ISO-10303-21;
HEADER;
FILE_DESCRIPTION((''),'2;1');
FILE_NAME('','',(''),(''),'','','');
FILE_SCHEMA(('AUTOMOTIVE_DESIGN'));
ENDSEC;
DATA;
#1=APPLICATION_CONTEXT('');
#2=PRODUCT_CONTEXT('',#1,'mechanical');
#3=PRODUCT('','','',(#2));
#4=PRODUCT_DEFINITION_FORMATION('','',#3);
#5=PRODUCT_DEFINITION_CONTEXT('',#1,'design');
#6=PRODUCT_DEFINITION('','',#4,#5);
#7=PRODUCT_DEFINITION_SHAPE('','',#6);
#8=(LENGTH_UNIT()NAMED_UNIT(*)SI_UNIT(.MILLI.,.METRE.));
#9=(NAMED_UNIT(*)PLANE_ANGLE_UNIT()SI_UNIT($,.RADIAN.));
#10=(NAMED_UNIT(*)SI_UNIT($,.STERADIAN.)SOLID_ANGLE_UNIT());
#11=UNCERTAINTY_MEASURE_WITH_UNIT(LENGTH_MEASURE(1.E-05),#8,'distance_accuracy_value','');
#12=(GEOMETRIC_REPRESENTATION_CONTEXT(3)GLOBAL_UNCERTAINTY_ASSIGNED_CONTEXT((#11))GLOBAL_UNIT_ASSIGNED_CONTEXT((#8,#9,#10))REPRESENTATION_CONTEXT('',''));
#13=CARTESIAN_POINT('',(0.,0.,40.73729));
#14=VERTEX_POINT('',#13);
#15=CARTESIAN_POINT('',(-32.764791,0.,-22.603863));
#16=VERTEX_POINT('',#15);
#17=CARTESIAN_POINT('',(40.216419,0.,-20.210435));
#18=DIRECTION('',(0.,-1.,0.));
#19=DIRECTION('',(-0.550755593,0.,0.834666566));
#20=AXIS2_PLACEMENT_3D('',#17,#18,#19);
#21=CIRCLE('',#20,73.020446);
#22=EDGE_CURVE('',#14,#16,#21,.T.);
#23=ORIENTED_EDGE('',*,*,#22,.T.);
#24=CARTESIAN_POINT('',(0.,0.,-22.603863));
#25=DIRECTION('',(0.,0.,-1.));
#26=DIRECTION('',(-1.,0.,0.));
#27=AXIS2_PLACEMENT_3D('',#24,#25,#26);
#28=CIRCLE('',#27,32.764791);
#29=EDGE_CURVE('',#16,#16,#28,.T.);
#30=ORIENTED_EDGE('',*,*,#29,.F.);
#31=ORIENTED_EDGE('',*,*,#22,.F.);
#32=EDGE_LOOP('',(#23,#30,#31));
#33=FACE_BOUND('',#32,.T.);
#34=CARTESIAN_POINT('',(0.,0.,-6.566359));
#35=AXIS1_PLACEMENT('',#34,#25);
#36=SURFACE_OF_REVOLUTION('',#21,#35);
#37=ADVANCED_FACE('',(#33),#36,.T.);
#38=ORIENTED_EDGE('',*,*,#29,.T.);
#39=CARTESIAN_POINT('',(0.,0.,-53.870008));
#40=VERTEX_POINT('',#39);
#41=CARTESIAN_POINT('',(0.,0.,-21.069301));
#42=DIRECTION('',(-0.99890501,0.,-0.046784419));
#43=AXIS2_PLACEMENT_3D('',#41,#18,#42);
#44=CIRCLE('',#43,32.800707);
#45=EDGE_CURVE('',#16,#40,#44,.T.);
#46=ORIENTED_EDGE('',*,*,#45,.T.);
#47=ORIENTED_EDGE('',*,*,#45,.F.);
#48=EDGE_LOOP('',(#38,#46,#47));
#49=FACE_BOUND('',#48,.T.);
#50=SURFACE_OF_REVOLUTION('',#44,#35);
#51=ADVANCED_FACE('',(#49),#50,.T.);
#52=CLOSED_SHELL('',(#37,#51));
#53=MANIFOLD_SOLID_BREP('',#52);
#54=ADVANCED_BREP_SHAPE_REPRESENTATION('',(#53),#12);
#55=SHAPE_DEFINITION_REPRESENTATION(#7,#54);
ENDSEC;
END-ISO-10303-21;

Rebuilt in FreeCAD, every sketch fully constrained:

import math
import FreeCAD as App
import Part
import Sketcher

V = App.Vector

doc = App.newDocument("Part")
params = doc.addObject("Spreadsheet::Sheet", "Params")
for row, (alias, value) in enumerate([
    ("revolution_angle", "360 deg"),
], start=1):
    params.set(f"A{row}", alias)
    params.set(f"B{row}", "=" + value)
    params.setAlias(f"B{row}", alias)

body = doc.addObject("PartDesign::Body", "Body")

# Sketch on XZ plane
sketch1 = body.newObject("Sketcher::SketchObject", "Sketch")
sketch1.AttachmentSupport = (doc.getObject("XZ_Plane"), [""])
sketch1.MapMode = "FlatFace"
sketch1.addGeometry([
    Part.ArcOfCircle(Part.Circle(V(0, -21.069301, 0), V(0, 0, 1), 32.800707), math.radians(-177.318471), math.radians(-89.999999)),
    Part.LineSegment(V(0, -53.870008, 0), V(0, 40.73729, 0)),
    Part.ArcOfCircle(Part.Circle(V(40.216419, -20.210435, 0), V(0, 0, 1), 73.020446), math.radians(123.418865), math.radians(181.878349)),
], False)
sketch1.addConstraint([
    Sketcher.Constraint("Coincident", 0, 2, 1, 1),
    Sketcher.Constraint("Coincident", 1, 2, 2, 1),
    Sketcher.Constraint("Coincident", 2, 2, 0, 1),
    Sketcher.Constraint("Vertical", 1),
    Sketcher.Constraint("PointOnObject", 0, 3, -2),
    Sketcher.Constraint("PointOnObject", 0, 2, -2),
    Sketcher.Constraint("DistanceY", 1, 1, 1, 2, 94.607298),
    Sketcher.Constraint("Radius", 0, 32.800707),
    Sketcher.Constraint("Radius", 2, 73.020446),
    Sketcher.Constraint("DistanceY", 0, 3, -1, 1, 21.069301),
    Sketcher.Constraint("DistanceX", -1, 1, 2, 3, 40.216419),
])
revolution = body.newObject("PartDesign::Revolution", "Revolution")
revolution.Profile = sketch1
revolution.ReferenceAxis = (sketch1, ["V_Axis"])
revolution.setExpression("Angle", "Params.revolution_angle")

doc.recompute()
